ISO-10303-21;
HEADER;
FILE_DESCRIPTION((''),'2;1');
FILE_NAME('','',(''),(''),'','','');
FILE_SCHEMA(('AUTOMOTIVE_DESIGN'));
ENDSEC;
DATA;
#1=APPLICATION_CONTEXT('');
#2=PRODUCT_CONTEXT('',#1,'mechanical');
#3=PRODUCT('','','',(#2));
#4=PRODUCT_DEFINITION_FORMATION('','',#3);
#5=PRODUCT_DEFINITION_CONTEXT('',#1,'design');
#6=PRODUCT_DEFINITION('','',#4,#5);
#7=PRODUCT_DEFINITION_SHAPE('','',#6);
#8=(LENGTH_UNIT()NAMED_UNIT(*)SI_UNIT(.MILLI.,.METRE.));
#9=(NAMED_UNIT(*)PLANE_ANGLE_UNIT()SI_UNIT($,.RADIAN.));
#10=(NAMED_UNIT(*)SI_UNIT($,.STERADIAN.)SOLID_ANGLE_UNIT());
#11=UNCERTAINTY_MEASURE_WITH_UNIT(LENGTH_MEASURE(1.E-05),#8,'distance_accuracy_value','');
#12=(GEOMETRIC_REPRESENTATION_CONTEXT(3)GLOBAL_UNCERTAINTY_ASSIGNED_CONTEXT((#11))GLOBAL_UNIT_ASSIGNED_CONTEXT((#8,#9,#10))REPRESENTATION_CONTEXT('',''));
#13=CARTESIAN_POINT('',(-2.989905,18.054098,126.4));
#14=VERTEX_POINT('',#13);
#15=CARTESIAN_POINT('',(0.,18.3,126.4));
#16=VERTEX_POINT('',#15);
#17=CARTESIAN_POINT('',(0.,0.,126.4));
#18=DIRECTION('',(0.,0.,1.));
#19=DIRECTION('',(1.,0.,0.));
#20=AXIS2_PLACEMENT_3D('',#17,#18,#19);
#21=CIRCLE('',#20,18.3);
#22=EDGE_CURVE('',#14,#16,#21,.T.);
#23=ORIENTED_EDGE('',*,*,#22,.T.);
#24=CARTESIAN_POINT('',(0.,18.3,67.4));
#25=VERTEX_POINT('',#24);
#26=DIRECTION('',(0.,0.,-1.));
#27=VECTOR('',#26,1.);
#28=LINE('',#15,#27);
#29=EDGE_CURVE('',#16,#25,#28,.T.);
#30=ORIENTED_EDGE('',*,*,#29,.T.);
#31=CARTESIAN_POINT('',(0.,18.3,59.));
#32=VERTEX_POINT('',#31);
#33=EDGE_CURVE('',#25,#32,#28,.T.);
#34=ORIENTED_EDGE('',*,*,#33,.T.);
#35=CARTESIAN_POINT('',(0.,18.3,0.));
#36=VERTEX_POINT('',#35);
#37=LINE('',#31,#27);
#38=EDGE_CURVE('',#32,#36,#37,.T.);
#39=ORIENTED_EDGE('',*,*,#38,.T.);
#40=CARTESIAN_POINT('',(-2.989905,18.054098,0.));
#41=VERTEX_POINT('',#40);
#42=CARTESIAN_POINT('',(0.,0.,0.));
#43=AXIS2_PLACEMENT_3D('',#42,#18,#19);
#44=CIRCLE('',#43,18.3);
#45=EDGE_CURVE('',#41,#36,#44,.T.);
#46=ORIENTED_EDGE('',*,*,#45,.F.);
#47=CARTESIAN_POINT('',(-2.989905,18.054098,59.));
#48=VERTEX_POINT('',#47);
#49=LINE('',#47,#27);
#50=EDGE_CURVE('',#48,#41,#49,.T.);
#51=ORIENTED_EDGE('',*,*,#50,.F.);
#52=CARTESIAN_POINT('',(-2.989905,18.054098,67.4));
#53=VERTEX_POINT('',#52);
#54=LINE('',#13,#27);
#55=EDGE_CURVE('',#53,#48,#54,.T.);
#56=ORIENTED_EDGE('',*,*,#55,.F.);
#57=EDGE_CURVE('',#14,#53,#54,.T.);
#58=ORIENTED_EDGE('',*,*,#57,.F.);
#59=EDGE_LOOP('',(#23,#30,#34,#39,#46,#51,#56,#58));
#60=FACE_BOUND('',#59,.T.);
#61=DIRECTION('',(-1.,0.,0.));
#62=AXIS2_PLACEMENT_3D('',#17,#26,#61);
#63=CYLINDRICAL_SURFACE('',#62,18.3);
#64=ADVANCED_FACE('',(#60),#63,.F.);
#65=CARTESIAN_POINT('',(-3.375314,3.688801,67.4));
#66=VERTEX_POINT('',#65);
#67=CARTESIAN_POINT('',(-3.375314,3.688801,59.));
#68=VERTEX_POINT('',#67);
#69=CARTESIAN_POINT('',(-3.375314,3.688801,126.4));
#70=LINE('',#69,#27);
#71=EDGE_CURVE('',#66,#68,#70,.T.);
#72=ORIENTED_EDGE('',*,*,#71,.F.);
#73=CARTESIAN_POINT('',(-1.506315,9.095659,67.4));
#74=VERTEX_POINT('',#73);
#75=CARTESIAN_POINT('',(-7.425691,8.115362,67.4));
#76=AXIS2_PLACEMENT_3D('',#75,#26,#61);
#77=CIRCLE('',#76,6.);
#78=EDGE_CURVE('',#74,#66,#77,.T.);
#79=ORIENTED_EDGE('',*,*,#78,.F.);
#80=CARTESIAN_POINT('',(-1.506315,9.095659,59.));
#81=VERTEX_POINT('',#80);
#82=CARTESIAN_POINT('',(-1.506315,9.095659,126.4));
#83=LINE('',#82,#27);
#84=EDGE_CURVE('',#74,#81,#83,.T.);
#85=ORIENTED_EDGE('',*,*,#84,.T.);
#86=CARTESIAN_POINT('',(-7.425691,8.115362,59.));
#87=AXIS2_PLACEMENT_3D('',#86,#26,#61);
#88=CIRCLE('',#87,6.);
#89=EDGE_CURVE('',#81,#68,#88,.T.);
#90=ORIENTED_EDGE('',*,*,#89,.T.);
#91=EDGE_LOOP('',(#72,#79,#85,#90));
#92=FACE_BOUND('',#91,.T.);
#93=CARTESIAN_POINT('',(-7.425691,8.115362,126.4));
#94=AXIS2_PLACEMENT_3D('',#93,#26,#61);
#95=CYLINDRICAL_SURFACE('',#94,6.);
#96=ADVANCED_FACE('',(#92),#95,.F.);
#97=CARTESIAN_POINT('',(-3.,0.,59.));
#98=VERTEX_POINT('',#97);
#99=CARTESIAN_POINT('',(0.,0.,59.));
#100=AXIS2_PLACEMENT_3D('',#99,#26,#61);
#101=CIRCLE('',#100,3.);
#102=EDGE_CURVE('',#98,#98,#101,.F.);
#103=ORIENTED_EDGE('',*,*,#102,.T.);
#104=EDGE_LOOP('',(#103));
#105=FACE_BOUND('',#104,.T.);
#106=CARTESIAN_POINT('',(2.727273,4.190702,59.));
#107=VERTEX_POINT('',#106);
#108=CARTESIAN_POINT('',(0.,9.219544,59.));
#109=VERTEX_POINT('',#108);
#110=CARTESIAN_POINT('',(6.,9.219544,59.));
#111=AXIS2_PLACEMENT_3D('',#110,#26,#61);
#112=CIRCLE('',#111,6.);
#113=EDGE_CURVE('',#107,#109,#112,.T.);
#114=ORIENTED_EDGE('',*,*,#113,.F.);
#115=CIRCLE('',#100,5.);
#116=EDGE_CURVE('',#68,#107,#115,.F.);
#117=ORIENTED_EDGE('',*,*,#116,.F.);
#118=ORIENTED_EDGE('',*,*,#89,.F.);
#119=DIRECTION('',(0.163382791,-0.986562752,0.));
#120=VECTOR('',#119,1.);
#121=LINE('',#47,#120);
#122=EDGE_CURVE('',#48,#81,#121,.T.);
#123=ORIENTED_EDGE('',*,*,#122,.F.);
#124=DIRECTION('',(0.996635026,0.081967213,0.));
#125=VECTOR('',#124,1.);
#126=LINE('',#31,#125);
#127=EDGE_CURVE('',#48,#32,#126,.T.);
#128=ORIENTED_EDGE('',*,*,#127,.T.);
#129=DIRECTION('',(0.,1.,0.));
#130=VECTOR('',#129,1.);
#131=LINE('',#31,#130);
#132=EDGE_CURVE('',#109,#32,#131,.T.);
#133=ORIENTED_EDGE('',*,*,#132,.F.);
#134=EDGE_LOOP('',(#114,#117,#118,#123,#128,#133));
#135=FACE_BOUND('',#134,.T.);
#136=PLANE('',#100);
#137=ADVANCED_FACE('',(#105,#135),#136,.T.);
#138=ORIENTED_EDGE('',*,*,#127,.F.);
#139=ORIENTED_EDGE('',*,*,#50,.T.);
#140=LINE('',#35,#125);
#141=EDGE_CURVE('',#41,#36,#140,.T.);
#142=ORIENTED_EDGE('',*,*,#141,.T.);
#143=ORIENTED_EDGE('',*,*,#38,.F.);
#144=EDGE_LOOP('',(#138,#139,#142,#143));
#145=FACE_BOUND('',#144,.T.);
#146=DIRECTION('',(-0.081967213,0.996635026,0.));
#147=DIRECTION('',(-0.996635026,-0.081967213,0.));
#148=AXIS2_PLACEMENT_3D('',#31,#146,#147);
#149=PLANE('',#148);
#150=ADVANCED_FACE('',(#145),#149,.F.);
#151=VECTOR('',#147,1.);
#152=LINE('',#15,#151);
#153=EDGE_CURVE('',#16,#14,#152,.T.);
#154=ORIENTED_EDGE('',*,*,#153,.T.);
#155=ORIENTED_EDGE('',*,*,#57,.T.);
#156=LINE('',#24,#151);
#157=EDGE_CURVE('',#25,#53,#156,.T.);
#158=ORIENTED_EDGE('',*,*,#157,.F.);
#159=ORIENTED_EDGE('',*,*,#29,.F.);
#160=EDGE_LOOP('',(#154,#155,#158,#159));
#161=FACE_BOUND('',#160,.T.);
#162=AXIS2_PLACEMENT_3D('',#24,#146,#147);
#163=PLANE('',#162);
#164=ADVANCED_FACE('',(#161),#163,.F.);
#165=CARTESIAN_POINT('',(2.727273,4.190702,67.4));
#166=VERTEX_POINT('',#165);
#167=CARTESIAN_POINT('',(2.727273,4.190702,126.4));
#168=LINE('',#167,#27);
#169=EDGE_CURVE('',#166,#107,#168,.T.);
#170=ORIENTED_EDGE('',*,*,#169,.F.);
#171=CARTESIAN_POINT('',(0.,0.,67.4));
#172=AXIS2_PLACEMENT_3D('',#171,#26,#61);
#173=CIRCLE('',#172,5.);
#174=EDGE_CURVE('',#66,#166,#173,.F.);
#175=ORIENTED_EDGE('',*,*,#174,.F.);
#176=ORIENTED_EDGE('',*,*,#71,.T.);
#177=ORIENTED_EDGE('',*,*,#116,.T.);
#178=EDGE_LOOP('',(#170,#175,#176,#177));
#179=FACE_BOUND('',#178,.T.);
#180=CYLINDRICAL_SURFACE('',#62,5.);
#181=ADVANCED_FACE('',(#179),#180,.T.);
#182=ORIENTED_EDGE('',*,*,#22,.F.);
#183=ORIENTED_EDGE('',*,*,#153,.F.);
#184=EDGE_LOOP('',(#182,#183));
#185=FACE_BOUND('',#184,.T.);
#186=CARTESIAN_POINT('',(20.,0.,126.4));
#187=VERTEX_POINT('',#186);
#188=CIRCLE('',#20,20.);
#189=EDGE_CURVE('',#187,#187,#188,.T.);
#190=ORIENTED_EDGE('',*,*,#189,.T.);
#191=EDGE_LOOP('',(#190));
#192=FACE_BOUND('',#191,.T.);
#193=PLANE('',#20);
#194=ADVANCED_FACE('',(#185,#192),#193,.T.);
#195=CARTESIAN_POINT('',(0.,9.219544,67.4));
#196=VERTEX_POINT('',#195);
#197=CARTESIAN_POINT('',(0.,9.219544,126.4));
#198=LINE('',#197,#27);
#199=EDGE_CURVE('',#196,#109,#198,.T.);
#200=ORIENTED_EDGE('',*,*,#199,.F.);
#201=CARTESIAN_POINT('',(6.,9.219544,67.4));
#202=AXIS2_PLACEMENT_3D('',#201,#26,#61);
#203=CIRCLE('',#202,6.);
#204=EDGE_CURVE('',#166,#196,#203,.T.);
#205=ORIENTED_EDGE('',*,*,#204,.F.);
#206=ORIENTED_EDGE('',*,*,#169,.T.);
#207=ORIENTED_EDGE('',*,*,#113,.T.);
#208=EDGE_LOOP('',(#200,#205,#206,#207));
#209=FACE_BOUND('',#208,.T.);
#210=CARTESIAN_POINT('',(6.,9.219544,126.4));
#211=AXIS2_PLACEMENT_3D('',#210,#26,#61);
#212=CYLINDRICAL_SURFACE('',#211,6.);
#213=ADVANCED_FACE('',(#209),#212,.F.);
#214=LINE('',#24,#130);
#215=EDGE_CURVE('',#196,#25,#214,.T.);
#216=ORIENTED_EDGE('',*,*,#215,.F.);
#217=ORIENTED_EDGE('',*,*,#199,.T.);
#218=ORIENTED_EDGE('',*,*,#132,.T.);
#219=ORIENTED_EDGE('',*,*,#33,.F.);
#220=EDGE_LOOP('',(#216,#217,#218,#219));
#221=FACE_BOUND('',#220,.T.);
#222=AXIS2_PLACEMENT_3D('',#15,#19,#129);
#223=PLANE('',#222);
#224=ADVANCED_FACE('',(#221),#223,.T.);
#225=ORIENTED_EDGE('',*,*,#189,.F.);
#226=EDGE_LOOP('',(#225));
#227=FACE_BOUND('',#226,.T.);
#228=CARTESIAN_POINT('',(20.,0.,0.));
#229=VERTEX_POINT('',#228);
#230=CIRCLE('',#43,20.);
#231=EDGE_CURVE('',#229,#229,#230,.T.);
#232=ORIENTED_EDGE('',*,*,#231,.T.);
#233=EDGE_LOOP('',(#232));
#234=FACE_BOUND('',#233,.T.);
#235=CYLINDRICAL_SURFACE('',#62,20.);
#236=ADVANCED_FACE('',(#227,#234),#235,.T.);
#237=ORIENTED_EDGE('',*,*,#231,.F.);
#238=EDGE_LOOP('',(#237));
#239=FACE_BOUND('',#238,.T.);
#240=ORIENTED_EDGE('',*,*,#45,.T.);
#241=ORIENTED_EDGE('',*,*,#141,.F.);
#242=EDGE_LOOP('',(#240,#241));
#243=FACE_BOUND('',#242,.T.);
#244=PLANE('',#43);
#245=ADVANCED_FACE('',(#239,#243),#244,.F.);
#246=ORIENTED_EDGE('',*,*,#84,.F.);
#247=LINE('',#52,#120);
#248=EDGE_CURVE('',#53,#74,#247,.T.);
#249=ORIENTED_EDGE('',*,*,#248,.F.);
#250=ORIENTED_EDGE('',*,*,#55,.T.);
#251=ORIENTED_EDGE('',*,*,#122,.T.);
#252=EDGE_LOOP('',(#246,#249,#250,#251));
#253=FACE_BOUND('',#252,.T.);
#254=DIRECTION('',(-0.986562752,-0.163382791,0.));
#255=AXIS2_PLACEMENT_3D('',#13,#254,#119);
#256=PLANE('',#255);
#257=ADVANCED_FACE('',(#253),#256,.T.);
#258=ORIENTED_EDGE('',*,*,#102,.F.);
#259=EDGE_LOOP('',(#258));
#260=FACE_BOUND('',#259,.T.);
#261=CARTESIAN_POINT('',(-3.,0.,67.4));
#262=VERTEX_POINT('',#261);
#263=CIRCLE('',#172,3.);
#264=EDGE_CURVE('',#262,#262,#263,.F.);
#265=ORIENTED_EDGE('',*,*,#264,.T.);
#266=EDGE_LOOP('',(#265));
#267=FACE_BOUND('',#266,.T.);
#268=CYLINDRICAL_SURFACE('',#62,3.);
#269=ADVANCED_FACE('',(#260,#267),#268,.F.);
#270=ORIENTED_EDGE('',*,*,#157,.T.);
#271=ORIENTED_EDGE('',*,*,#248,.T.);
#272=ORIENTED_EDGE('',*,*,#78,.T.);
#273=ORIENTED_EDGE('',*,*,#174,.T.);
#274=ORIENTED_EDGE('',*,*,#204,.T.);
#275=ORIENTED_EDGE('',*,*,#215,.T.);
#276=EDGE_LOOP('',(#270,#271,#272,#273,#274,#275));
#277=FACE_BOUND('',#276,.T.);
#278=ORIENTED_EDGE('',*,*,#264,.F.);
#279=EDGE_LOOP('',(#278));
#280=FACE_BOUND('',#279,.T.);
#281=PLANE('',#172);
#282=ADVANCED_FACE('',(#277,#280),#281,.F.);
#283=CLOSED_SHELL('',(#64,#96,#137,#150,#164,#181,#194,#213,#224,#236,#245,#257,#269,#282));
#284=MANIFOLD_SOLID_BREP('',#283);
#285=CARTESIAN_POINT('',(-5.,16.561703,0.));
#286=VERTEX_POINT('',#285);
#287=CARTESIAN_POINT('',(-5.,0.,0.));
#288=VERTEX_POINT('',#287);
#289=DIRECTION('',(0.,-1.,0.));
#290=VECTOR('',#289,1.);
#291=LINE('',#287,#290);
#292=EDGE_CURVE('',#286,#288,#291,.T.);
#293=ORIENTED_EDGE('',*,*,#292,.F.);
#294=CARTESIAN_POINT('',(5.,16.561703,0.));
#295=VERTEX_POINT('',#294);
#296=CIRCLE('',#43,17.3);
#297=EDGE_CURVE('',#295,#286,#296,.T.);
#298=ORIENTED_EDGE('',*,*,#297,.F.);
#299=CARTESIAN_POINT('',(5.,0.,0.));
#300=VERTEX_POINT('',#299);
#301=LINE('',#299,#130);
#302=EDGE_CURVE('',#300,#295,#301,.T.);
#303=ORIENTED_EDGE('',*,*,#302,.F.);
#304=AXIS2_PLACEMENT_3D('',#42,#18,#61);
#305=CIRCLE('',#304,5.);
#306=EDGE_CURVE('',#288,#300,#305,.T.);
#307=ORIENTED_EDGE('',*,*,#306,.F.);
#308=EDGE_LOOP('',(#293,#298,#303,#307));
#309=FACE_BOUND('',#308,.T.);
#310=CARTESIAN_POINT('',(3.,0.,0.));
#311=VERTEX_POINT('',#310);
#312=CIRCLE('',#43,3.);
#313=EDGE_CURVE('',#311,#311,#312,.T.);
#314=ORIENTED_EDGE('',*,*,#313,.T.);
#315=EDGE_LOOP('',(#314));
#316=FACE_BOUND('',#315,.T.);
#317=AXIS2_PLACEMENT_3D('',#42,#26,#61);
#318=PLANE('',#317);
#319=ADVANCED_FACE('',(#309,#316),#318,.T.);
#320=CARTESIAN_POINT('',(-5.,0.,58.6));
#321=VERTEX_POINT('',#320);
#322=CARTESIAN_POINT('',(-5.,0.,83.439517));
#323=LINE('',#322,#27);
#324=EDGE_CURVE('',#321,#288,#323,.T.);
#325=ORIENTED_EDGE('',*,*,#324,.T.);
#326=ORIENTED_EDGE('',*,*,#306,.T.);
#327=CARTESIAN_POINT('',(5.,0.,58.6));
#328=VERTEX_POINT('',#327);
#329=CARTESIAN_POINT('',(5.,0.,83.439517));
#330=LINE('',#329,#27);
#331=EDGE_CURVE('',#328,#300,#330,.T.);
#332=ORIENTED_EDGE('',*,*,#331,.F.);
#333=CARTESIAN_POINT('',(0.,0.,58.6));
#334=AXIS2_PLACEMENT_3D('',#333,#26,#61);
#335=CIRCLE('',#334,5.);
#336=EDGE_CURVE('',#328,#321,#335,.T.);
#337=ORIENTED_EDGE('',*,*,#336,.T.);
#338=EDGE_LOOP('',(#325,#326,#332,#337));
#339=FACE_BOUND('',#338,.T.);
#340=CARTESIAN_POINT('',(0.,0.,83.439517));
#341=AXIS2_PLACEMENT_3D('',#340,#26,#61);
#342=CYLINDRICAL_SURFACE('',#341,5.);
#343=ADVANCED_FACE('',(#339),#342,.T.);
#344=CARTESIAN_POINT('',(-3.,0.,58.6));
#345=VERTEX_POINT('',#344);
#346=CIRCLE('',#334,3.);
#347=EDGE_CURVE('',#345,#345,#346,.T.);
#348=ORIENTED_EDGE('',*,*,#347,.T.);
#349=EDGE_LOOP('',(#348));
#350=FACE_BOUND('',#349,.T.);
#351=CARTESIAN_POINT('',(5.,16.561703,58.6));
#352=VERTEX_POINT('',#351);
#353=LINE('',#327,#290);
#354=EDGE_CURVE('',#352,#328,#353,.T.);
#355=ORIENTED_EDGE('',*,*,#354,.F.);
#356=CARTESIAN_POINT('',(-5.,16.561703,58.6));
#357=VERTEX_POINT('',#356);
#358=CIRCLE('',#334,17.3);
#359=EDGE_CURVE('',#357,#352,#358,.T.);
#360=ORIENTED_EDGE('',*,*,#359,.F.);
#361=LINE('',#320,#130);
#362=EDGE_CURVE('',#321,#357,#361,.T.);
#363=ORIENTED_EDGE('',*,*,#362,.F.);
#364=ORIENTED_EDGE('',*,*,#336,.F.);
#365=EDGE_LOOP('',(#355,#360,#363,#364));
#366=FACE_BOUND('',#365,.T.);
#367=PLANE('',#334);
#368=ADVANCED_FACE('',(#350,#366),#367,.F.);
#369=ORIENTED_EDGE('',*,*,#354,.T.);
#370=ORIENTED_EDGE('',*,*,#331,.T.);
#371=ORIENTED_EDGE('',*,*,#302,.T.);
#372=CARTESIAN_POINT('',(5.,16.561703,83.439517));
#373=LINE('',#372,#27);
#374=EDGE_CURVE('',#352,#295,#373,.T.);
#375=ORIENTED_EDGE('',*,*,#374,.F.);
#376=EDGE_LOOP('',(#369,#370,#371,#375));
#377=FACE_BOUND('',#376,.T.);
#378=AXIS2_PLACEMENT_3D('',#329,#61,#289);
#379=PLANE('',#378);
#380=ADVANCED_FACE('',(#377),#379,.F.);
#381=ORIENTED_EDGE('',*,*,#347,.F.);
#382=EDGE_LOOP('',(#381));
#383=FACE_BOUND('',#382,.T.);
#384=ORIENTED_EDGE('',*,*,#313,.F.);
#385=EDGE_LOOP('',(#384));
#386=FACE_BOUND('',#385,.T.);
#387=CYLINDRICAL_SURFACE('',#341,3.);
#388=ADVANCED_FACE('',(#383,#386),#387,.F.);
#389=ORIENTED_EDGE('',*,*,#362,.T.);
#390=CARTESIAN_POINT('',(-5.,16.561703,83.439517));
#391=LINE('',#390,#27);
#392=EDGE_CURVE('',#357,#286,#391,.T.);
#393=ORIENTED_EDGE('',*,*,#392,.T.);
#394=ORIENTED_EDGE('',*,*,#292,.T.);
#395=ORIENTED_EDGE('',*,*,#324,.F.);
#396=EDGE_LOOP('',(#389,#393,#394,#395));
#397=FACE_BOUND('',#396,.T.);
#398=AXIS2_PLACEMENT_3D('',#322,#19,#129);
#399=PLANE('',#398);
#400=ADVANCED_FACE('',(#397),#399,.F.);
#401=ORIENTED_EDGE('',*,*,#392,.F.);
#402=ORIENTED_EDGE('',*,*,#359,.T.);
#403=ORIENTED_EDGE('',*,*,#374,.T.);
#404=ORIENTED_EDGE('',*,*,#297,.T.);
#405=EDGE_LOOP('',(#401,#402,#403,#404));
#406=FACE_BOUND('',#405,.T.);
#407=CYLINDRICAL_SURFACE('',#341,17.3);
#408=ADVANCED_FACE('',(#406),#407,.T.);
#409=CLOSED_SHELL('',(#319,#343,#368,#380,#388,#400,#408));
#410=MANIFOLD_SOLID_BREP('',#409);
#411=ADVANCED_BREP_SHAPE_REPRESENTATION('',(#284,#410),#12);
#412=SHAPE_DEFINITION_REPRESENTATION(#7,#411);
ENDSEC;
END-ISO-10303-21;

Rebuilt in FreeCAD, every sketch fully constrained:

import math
import FreeCAD as App
import Part
import Sketcher
from FreeCAD import Vector
Q = App.Units.Quantity

doc = App.newDocument("Part")
params = doc.addObject("Spreadsheet::Sheet", "Params")
for row, (alias, value) in enumerate([
    ("sketch1_diameter", "40 mm"),
    ("sketch1_diameter2", "36.6 mm"),
    ("pad1_length", "126.4 mm"),
    ("sketch2_diameter", "6 mm"),
    ("sketch2_radius", "6 mm"),
    ("sketch2_radius2", "5 mm"),
    ("sketch2_radius3", "18.3 mm"),
    ("pad2_length", "126.4 mm"),
    ("sketch3_radius", "18.3 mm"),
    ("sketch3_length", "3 mm"),
    ("pocket1_length", "59 mm"),
    ("sketch4_radius", "18.3 mm"),
    ("sketch4_length", "3 mm"),
    ("pocket2_length", "59 mm"),
    ("sketch5_diameter", "6 mm"),
    ("sketch5_radius", "5 mm"),
    ("sketch5_radius2", "17.3 mm"),
    ("pad3_length", "58.6 mm"),
], start=1):
    params.set(f"A{row}", alias)
    params.set(f"B{row}", "=" + value)
    params.setAlias(f"B{row}", alias)

body = doc.addObject("PartDesign::Body", "Body")

# Sketch on XY plane
sketch1 = body.newObject("Sketcher::SketchObject", "Sketch")
sketch1.AttachmentSupport = (doc.getObject("XY_Plane"), [""])
sketch1.MapMode = "FlatFace"
sketch1.addGeometry([
    Part.Circle(Vector(0, 0, 0), Vector(0, 0, 1), 20),
    Part.Circle(Vector(0, 0, 0), Vector(0, 0, 1), 18),
], False)
sketch1.addConstraint([
    Sketcher.Constraint("Coincident", 0, 3, -1, 1),
    Sketcher.Constraint("Coincident", 1, 3, -1, 1),
    Sketcher.Constraint("Diameter", 0, Q("40 mm")),
    Sketcher.Constraint("Diameter", 1, Q("36.6 mm")),
])
sketch1.setExpression("Constraints[2]", "Params.sketch1_diameter")
sketch1.setExpression("Constraints[3]", "Params.sketch1_diameter2")
pad1 = body.newObject("PartDesign::Pad", "Pad")
pad1.Profile = sketch1
pad1.setExpression("Length", "Params.pad1_length")

# Sketch on XY plane
sketch2 = body.newObject("Sketcher::SketchObject", "Sketch001")
sketch2.AttachmentSupport = (doc.getObject("XY_Plane"), [""])
sketch2.MapMode = "FlatFace"
sketch2.addGeometry([
    Part.LineSegment(Vector(0, 18.3, 0), Vector(0, 9.2, 0)),  # 0
    Part.ArcOfCircle(Part.Circle(Vector(6, 9.2, 0), Vector(0, 0, 1), 6), math.radians(-180), math.radians(-123)),  # 1
    Part.ArcOfCircle(Part.Circle(Vector(0, 0, 0), Vector(0, 0, 1), 5), math.radians(132), math.radians(417)),  # 2
    Part.ArcOfCircle(Part.Circle(Vector(-7.4, 8.1, 0), Vector(0, 0, 1), 6), math.radians(-48), math.radians(9)),  # 3
    Part.LineSegment(Vector(-1.5, 9.1, 0), Vector(-3, 18.1, 0)),  # 4
    Part.ArcOfCircle(Part.Circle(Vector(0, 0, 0), Vector(0, 0, 1), 18.3), math.radians(90), math.radians(99.4)),  # 5
    Part.Circle(Vector(0, 0, 0), Vector(0, 0, 1), 3),  # 6
], False)
sketch2.addConstraint([
    Sketcher.Constraint("Tangent", 0, 2, 1, 1),
    Sketcher.Constraint("Tangent", 1, 2, 2, 2),
    Sketcher.Constraint("Tangent", 2, 1, 3, 1),
    Sketcher.Constraint("Tangent", 3, 2, 4, 1),
    Sketcher.Constraint("Coincident", 4, 2, 5, 2),
    Sketcher.Constraint("Coincident", 5, 1, 0, 1),
    Sketcher.Constraint("Vertical", 0),
    Sketcher.Constraint("Coincident", 2, 3, -1, 1),
    Sketcher.Constraint("Coincident", 5, 3, -1, 1),
    Sketcher.Constraint("Coincident", 6, 3, -1, 1),
    Sketcher.Constraint("Equal", 1, 3),
    Sketcher.Constraint("PointOnObject", 0, 2, -2),
    Sketcher.Constraint("Diameter", 6, Q("6 mm")),
    Sketcher.Constraint("Radius", 1, Q("6 mm")),
    Sketcher.Constraint("Radius", 2, Q("5 mm")),
    Sketcher.Constraint("Radius", 5, Q("18.3 mm")),
    Sketcher.Constraint("DistanceX", 2, 1, 3, 2, Q("1.868999 mm")),
    Sketcher.Constraint("DistanceY", -1, 1, 2, 1, Q("3.688801 mm")),
])
sketch2.setExpression("Constraints[12]", "Params.sketch2_diameter")
sketch2.setExpression("Constraints[13]", "Params.sketch2_radius")
sketch2.setExpression("Constraints[14]", "Params.sketch2_radius2")
sketch2.setExpression("Constraints[15]", "Params.sketch2_radius3")
pad2 = body.newObject("PartDesign::Pad", "Pad001")
pad2.Profile = sketch2
pad2.setExpression("Length", "Params.pad2_length")

# Sketch on XY plane
sketch3 = body.newObject("Sketcher::SketchObject", "Sketch002")
sketch3.AttachmentSupport = (doc.getObject("XY_Plane"), [""])
sketch3.MapMode = "FlatFace"
sketch3.addGeometry([
    Part.LineSegment(Vector(-3, 18.1, 0), Vector(0, 18.3, 0)),
    Part.ArcOfCircle(Part.Circle(Vector(0, 0, 0), Vector(0, 0, 1), 18.3), math.radians(99), math.radians(450)),
], False)
sketch3.addConstraint([
    Sketcher.Constraint("Coincident", 0, 1, 1, 1),
    Sketcher.Constraint("Coincident", 1, 2, 0, 2),
    Sketcher.Constraint("Coincident", 1, 3, -1, 1),
    Sketcher.Constraint("PointOnObject", 1, 2, -2),
    Sketcher.Constraint("Radius", 1, Q("18.3 mm")),
    Sketcher.Constraint("Distance", 0, Q("3 mm")),
])
sketch3.setExpression("Constraints[4]", "Params.sketch3_radius")
sketch3.setExpression("Constraints[5]", "Params.sketch3_length")
pocket1 = body.newObject("PartDesign::Pocket", "Pocket")
pocket1.Profile = sketch3
pocket1.setExpression("Length", "Params.pocket1_length")
pocket1.Reversed = True

# Sketch on XY plane
sketch4 = body.newObject("Sketcher::SketchObject", "Sketch003")
sketch4.AttachmentSupport = (doc.getObject("XY_Plane"), [""])
sketch4.MapMode = "FlatFace"
sketch4.AttachmentOffset = App.Placement(Vector(0, 0, 126.4), App.Rotation())
sketch4.addGeometry([
    Part.LineSegment(Vector(0, 18.3, 0), Vector(-3, 18.1, 0)),
    Part.ArcOfCircle(Part.Circle(Vector(0, 0, 0), Vector(0, 0, 1), 18.3), math.radians(99), math.radians(450)),
], False)
sketch4.addConstraint([
    Sketcher.Constraint("Coincident", 0, 1, 1, 2),
    Sketcher.Constraint("Coincident", 1, 1, 0, 2),
    Sketcher.Constraint("Coincident", 1, 3, -1, 1),
    Sketcher.Constraint("PointOnObject", 0, 1, -2),
    Sketcher.Constraint("Radius", 1, Q("18.3 mm")),
    Sketcher.Constraint("Distance", 0, Q("3 mm")),
])
sketch4.setExpression("Constraints[4]", "Params.sketch4_radius")
sketch4.setExpression("Constraints[5]", "Params.sketch4_length")
pocket2 = body.newObject("PartDesign::Pocket", "Pocket001")
pocket2.Profile = sketch4
pocket2.setExpression("Length", "Params.pocket2_length")
body2 = doc.addObject("PartDesign::Body", "Body001")

# Sketch on XY plane
sketch5 = body2.newObject("Sketcher::SketchObject", "Sketch004")
sketch5.AttachmentSupport = (doc.getObject("XY_Plane001"), [""])
sketch5.MapMode = "FlatFace"
sketch5.addGeometry([
    Part.LineSegment(Vector(5, 0, 0), Vector(5, 16.6, 0)),  # 0
    Part.ArcOfCircle(Part.Circle(Vector(0, 0, 0), Vector(0, 0, 1), 17.3), math.radians(73), math.radians(107)),  # 1
    Part.LineSegment(Vector(-5, 16.6, 0), Vector(-5, 0, 0)),  # 2
    Part.ArcOfCircle(Part.Circle(Vector(0, 0, 0), Vector(0, 0, 1), 5), math.radians(180), math.radians(360)),  # 3
    Part.Circle(Vector(0, 0, 0), Vector(0, 0, 1), 3),  # 4
], False)
sketch5.addConstraint([
    Sketcher.Constraint("Coincident", 0, 2, 1, 1),
    Sketcher.Constraint("Coincident", 1, 2, 2, 1),
    Sketcher.Constraint("Tangent", 2, 2, 3, 1),
    Sketcher.Constraint("Tangent", 3, 2, 0, 1),
    Sketcher.Constraint("Vertical", 0),
    Sketcher.Constraint("Vertical", 2),
    Sketcher.Constraint("Coincident", 1, 3, -1, 1),
    Sketcher.Constraint("Coincident", 3, 3, -1, 1),
    Sketcher.Constraint("Coincident", 4, 3, -1, 1),
    Sketcher.Constraint("Diameter", 4, Q("6 mm")),
    Sketcher.Constraint("Radius", 3, Q("5 mm")),
    Sketcher.Constraint("Radius", 1, Q("17.3 mm")),
])
sketch5.setExpression("Constraints[9]", "Params.sketch5_diameter")
sketch5.setExpression("Constraints[10]", "Params.sketch5_radius")
sketch5.setExpression("Constraints[11]", "Params.sketch5_radius2")
pad3 = body2.newObject("PartDesign::Pad", "Pad002")
pad3.Profile = sketch5
pad3.setExpression("Length", "Params.pad3_length")

doc.recompute()
